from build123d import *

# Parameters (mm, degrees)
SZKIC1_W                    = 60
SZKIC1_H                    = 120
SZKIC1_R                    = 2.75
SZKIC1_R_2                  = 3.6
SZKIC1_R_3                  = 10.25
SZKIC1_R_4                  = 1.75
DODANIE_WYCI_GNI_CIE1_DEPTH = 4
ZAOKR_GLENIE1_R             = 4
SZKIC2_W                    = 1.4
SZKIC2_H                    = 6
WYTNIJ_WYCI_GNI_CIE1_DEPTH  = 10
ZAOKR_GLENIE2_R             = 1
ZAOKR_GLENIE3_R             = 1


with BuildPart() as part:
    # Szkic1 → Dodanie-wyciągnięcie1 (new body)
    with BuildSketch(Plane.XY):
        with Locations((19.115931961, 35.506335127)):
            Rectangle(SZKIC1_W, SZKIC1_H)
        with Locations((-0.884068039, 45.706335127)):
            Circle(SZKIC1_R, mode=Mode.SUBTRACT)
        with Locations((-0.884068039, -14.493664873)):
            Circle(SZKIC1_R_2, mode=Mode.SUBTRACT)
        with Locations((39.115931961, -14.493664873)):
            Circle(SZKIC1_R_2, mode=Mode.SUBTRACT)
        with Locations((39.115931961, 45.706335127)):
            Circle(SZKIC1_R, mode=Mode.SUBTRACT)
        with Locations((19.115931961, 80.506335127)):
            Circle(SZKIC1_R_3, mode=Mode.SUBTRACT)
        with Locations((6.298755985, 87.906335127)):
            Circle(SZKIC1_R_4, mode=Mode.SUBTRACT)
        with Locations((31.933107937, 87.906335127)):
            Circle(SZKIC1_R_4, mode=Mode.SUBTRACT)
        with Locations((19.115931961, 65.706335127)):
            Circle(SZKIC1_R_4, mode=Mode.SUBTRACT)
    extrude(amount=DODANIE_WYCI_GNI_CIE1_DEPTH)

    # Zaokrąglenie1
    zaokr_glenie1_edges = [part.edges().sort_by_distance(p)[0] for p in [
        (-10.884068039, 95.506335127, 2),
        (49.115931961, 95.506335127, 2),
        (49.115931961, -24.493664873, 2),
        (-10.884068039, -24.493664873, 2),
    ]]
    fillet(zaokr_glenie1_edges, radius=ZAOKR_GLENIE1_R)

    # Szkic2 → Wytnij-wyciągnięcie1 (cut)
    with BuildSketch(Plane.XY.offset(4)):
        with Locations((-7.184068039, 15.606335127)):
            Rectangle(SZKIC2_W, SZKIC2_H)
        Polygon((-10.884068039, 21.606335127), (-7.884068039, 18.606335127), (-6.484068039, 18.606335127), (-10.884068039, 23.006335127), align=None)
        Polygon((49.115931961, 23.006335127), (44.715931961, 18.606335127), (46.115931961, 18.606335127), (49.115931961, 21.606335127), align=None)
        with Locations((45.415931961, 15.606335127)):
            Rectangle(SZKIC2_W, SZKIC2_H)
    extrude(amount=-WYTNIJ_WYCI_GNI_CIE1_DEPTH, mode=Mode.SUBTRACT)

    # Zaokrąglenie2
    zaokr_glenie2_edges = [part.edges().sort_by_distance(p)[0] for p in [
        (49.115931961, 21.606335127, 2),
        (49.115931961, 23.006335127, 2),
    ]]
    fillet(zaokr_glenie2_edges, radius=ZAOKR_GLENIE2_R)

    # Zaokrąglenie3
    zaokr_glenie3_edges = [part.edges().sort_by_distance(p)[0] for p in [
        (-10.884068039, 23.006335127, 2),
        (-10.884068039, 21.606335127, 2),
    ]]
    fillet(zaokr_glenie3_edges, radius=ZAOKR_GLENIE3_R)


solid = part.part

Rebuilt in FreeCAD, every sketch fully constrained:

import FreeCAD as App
import Part
import Sketcher


def edges_at(feature, points):
    """Names of the edges that pass closest to the given points."""
    edges = feature.Shape.Edges
    near = lambda p: min(range(len(edges)), key=lambda i: edges[i].distToShape(Part.Vertex(*p))[0])
    return sorted({f"Edge{near(p) + 1}" for p in points})


def add_polygon(sketch, points):
    """Adds a closed chain of lines whose ends are joined by coincident constraints."""
    first, n = sketch.GeometryCount, len(points)
    for a, b in zip(points, points[1:] + points[:1]):
        sketch.addGeometry(Part.LineSegment(App.Vector(*a, 0), App.Vector(*b, 0)), False)
    for i in range(n):
        sketch.addConstraint(Sketcher.Constraint("Coincident", first + i, 2, first + (i + 1) % n, 1))

doc = App.newDocument("Part")
body = doc.addObject("PartDesign::Body", "Body")

sketch1 = body.newObject("Sketcher::SketchObject", "Sketch")
sketch1.AttachmentSupport = (doc.getObject("XY_Plane"), [""])
sketch1.MapMode = "FlatFace"
add_polygon(sketch1, [(-10.884068, 95.506335), (-10.884068, -24.493665), (49.115932, -24.493665), (49.115932, 95.506335)])
sketch1.addGeometry(Part.Circle(App.Vector(-0.884068, -14.493665, 0), App.Vector(0, 0, 1), 3.6), False)
sketch1.addGeometry(Part.Circle(App.Vector(39.115932, -14.493665, 0), App.Vector(0, 0, 1), 3.6), False)
sketch1.addGeometry(Part.Circle(App.Vector(-0.884068, 45.706335, 0), App.Vector(0, 0, 1), 2.75), False)
sketch1.addGeometry(Part.Circle(App.Vector(6.298756, 87.906335, 0), App.Vector(0, 0, 1), 1.75), False)
sketch1.addGeometry(Part.Circle(App.Vector(39.115932, 45.706335, 0), App.Vector(0, 0, 1), 2.75), False)
sketch1.addGeometry(Part.Circle(App.Vector(19.115932, 65.706335, 0), App.Vector(0, 0, 1), 1.75), False)
sketch1.addGeometry(Part.Circle(App.Vector(19.115932, 80.506335, 0), App.Vector(0, 0, 1), 10.25), False)
sketch1.addGeometry(Part.Circle(App.Vector(31.933108, 87.906335, 0), App.Vector(0, 0, 1), 1.75), False)
sketch1.addConstraint(Sketcher.Constraint("Vertical", 0))
sketch1.addConstraint(Sketcher.Constraint("Horizontal", 1))
sketch1.addConstraint(Sketcher.Constraint("Vertical", 2))
sketch1.addConstraint(Sketcher.Constraint("Horizontal", 3))
sketch1.addConstraint(Sketcher.Constraint("Equal", 4, 5))
sketch1.addConstraint(Sketcher.Constraint("Equal", 6, 8))
sketch1.addConstraint(Sketcher.Constraint("Equal", 7, 9))
sketch1.addConstraint(Sketcher.Constraint("Equal", 9, 11))
sketch1.addConstraint(Sketcher.Constraint("Horizontal", 4, 3, 5, 3))
sketch1.addConstraint(Sketcher.Constraint("Horizontal", 6, 3, 8, 3))
sketch1.addConstraint(Sketcher.Constraint("Horizontal", 7, 3, 11, 3))
sketch1.addConstraint(Sketcher.Constraint("Vertical", 4, 3, 6, 3))
sketch1.addConstraint(Sketcher.Constraint("Vertical", 5, 3, 8, 3))
sketch1.addConstraint(Sketcher.Constraint("Vertical", 9, 3, 10, 3))
sketch1.addConstraint(Sketcher.Constraint("Diameter", 4, 7.2))
sketch1.addConstraint(Sketcher.Constraint("Diameter", 6, 5.5))
sketch1.addConstraint(Sketcher.Constraint("Diameter", 7, 3.5))
sketch1.addConstraint(Sketcher.Constraint("Diameter", 10, 20.5))
sketch1.addConstraint(Sketcher.Constraint("DistanceX", 1, 1, 1, 2, 60.0))
sketch1.addConstraint(Sketcher.Constraint("DistanceY", 0, 2, 0, 1, 120.0))
sketch1.addConstraint(Sketcher.Constraint("DistanceX", 4, 3, 5, 3, 40.0))
sketch1.addConstraint(Sketcher.Constraint("DistanceX", 6, 3, 9, 3, 20.0))
sketch1.addConstraint(Sketcher.Constraint("DistanceY", 6, 3, 9, 3, 20.0))
sketch1.addConstraint(Sketcher.Constraint("DistanceY", 4, 3, 10, 3, 95.0))
sketch1.addConstraint(Sketcher.Constraint("DistanceX", 0, 2, 4, 3, 10.0))
sketch1.addConstraint(Sketcher.Constraint("DistanceY", 0, 2, 4, 3, 10.0))
sketch1.addConstraint(Sketcher.Constraint("DistanceY", 4, 3, 6, 3, 60.2))
sketch1.addConstraint(Sketcher.Constraint("DistanceY", 6, 3, 7, 3, 42.2))
sketch1.addConstraint(Sketcher.Constraint("DistanceX", 4, 3, -1, 1, 0.884068))
sketch1.addConstraint(Sketcher.Constraint("DistanceX", 7, 3, 11, 3, 25.634352))
sketch1.addConstraint(Sketcher.Constraint("DistanceY", 4, 3, -1, 1, 14.493665))
sketch1.addConstraint(Sketcher.Constraint("DistanceX", -1, 1, 7, 3, 6.298756))
pad1 = body.newObject("PartDesign::Pad", "Pad")
pad1.Profile = sketch1
pad1.Length = 4
doc.recompute()

fillet = body.newObject("PartDesign::Fillet", "Fillet")
fillet.Base = (pad1, edges_at(pad1, [
    (-10.884, 95.506, 2),
    (49.116, 95.506, 2),
    (49.116, -24.494, 2),
    (-10.884, -24.494, 2),
]))
fillet.Radius = 4

sketch2 = body.newObject("Sketcher::SketchObject", "Sketch001")
sketch2.AttachmentSupport = (doc.getObject("XY_Plane"), [""])
sketch2.MapMode = "FlatFace"
sketch2.AttachmentOffset = App.Placement(App.Vector(0, 0, 4), App.Rotation())
add_polygon(sketch2, [(-7.884068, 18.606335), (-7.884068, 12.606335), (-6.484068, 12.606335), (-6.484068, 18.606335), (-10.884068, 23.006335), (-10.884068, 21.606335)])
add_polygon(sketch2, [(49.115932, 23.006335), (44.715932, 18.606335), (44.715932, 12.606335), (46.115932, 12.606335), (46.115932, 18.606335), (49.115932, 21.606335)])
sketch2.addConstraint(Sketcher.Constraint("Vertical", 0))
sketch2.addConstraint(Sketcher.Constraint("Horizontal", 1))
sketch2.addConstraint(Sketcher.Constraint("Vertical", 2))
sketch2.addConstraint(Sketcher.Constraint("Vertical", 4))
sketch2.addConstraint(Sketcher.Constraint("Vertical", 7))
sketch2.addConstraint(Sketcher.Constraint("Horizontal", 8))
sketch2.addConstraint(Sketcher.Constraint("Vertical", 9))
sketch2.addConstraint(Sketcher.Constraint("Vertical", 11))
sketch2.addConstraint(Sketcher.Constraint("Parallel", 3, 5))
sketch2.addConstraint(Sketcher.Constraint("Perpendicular", 5, 6))
sketch2.addConstraint(Sketcher.Constraint("Parallel", 6, 10))
sketch2.addConstraint(Sketcher.Constraint("Horizontal", 2, 2, 5, 2))
sketch2.addConstraint(Sketcher.Constraint("Horizontal", 5, 2, 6, 2))
sketch2.addConstraint(Sketcher.Constraint("Horizontal", 1, 2, 7, 2))
sketch2.addConstraint(Sketcher.Constraint("Horizontal", 6, 2, 9, 2))
sketch2.addConstraint(Sketcher.Constraint("Horizontal", 4, 2, 10, 2))
sketch2.addConstraint(Sketcher.Constraint("Horizontal", 3, 2, 11, 2))
sketch2.addConstraint(Sketcher.Constraint("Equal", 1, 8))
sketch2.addConstraint(Sketcher.Constraint("DistanceY", 0, 2, 0, 1, 6.0))
sketch2.addConstraint(Sketcher.Constraint("DistanceX", 1, 1, 1, 2, 1.4))
sketch2.addConstraint(Sketcher.Constraint("DistanceX", 3, 2, 0, 2, 3.0))
sketch2.addConstraint(Sketcher.Constraint("DistanceX", 0, 2, 8, 2, 54.0))
sketch2.addConstraint(Sketcher.Constraint("DistanceX", 0, 2, -1, 1, 7.884068))
sketch2.addConstraint(Sketcher.Constraint("DistanceY", -1, 1, 0, 2, 12.606335))
pocket1 = body.newObject("PartDesign::Pocket", "Pocket")
pocket1.Profile = sketch2
pocket1.Length = 10
doc.recompute()

fillet2 = body.newObject("PartDesign::Fillet", "Fillet001")
fillet2.Base = (pocket1, edges_at(pocket1, [(49.116, 21.606, 2), (49.116, 23.006, 2)]))
fillet2.Radius = 1
doc.recompute()

fillet3 = body.newObject("PartDesign::Fillet", "Fillet002")
fillet3.Base = (fillet2, edges_at(fillet2, [(-10.884, 23.006, 2), (-10.884, 21.606, 2)]))
fillet3.Radius = 1

doc.recompute()
